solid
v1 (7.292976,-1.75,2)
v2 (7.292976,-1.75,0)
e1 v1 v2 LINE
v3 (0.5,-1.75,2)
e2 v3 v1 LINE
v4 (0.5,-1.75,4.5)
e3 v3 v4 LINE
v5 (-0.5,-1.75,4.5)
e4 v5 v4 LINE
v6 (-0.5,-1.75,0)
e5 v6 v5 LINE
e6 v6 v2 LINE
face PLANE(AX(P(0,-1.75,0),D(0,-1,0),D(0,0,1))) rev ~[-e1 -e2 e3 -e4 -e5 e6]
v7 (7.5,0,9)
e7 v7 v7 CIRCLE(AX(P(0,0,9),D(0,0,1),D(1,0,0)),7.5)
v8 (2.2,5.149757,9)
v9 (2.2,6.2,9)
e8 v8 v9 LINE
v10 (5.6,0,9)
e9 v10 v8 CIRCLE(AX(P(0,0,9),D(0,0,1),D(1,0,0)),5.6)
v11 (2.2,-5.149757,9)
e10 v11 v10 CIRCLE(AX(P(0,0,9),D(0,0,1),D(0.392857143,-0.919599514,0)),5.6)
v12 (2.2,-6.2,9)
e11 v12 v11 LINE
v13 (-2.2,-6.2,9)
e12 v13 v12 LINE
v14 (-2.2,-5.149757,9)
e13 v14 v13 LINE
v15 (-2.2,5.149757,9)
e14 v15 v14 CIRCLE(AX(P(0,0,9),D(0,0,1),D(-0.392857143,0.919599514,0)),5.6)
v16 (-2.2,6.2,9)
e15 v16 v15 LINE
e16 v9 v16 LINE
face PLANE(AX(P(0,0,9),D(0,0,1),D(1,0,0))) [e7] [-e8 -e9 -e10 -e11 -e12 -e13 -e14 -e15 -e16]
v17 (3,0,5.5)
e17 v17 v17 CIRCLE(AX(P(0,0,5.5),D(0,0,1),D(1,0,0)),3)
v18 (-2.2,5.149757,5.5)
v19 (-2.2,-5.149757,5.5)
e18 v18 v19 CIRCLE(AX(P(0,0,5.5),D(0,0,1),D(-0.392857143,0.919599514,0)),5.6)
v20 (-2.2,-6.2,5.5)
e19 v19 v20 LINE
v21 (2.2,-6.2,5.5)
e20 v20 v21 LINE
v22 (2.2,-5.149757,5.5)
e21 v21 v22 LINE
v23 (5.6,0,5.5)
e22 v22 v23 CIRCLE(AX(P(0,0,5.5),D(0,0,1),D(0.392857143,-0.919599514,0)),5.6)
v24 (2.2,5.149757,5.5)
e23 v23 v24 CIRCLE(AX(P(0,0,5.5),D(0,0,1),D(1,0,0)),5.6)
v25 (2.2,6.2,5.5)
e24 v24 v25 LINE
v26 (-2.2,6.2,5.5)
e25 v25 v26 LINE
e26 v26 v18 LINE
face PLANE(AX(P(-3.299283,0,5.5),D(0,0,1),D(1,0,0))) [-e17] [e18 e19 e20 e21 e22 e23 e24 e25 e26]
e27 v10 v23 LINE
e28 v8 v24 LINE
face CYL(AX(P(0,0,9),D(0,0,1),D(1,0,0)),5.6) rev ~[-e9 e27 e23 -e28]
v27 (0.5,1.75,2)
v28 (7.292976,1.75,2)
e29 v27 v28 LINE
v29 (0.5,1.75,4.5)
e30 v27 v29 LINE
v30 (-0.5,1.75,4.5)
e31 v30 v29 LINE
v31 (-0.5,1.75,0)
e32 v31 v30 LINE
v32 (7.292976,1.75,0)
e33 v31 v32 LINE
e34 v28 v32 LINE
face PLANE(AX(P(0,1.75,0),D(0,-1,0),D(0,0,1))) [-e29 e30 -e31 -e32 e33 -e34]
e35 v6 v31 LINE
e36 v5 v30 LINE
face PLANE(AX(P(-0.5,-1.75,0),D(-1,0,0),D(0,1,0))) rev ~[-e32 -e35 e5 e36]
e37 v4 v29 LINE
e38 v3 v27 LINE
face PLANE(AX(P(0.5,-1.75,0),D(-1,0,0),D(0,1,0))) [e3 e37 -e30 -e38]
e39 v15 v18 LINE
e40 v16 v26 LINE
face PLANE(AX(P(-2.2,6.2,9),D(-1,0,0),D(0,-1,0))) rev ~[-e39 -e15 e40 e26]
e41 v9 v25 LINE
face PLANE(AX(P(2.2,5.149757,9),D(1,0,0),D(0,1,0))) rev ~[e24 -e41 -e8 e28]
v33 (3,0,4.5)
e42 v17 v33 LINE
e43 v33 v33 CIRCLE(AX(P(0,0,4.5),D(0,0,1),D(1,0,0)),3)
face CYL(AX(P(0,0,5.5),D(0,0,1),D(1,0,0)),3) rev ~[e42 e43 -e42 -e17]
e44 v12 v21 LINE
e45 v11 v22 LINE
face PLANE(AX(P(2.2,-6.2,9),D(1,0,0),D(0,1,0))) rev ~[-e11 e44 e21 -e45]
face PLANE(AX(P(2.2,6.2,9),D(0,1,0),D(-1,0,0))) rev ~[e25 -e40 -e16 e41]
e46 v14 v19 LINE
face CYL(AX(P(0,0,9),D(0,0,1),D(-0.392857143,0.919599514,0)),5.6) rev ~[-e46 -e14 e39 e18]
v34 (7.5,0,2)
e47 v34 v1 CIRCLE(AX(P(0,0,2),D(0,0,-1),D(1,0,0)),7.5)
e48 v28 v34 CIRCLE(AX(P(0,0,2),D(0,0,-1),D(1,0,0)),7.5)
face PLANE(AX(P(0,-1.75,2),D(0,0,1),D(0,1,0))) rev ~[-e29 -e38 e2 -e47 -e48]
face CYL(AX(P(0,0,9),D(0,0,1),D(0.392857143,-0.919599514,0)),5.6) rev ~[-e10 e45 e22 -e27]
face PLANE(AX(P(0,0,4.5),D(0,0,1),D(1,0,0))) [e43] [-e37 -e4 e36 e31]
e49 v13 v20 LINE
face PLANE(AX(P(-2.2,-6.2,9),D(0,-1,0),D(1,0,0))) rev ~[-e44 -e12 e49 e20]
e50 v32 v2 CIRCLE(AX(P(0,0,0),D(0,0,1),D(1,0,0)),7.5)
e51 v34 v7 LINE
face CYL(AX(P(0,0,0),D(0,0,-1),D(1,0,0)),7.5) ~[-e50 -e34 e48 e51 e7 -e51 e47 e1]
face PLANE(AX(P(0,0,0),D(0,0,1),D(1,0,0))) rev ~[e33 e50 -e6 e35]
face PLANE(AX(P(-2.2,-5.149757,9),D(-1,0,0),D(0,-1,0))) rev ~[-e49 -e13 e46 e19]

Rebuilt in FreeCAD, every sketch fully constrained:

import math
import FreeCAD as App
import Part
import Sketcher

V = App.Vector

doc = App.newDocument("Part")
params = doc.addObject("Spreadsheet::Sheet", "Params")
for row, (alias, value) in enumerate([
    ("sketch1_diameter", "15 mm"),
    ("sketch1_width", "1 mm"),
    ("sketch1_height", "3.5 mm"),
    ("pad1_length", "9 mm"),
    ("sketch2_height", "2 mm"),
    ("sketch2_width", "3.5 mm"),
    ("pocket1_length", "10 mm"),
    ("sketch3_radius", "5.6 mm"),
    ("sketch3_width", "1 mm"),
    ("sketch3_width2", "4.4 mm"),
    ("sketch3_height", "3.5 mm"),
    ("pocket2_length", "3.5 mm"),
    ("sketch4_diameter", "6 mm"),
    ("sketch4_width", "1 mm"),
    ("sketch4_height", "3.5 mm"),
    ("pocket3_length", "1 mm"),
], start=1):
    params.set(f"A{row}", alias)
    params.set(f"B{row}", "=" + value)
    params.setAlias(f"B{row}", alias)

body = doc.addObject("PartDesign::Body", "Body")

sketch1 = body.newObject("Sketcher::SketchObject", "Sketch")
sketch1.AttachmentSupport = (doc.getObject("XY_Plane"), [""])
sketch1.MapMode = "FlatFace"
sketch1.addGeometry([
    Part.Circle(V(0, 0, 0), V(0, 0, 1), 7.5),
    Part.LineSegment(V(0.5, -1.8, 0), V(-0.5, -1.8, 0)),
    Part.LineSegment(V(-0.5, -1.8, 0), V(-0.5, 1.8, 0)),
    Part.LineSegment(V(-0.5, 1.8, 0), V(0.5, 1.8, 0)),
    Part.LineSegment(V(0.5, 1.8, 0), V(0.5, -1.8, 0)),
], False)
sketch1.addConstraint([
    Sketcher.Constraint("Coincident", 1, 2, 2, 1),
    Sketcher.Constraint("Coincident", 2, 2, 3, 1),
    Sketcher.Constraint("Coincident", 3, 2, 4, 1),
    Sketcher.Constraint("Coincident", 4, 2, 1, 1),
    Sketcher.Constraint("Horizontal", 1),
    Sketcher.Constraint("Vertical", 2),
    Sketcher.Constraint("Horizontal", 3),
    Sketcher.Constraint("Vertical", 4),
    Sketcher.Constraint("Coincident", 0, 3, -1, 1),
    Sketcher.Constraint("Symmetric", 1, 2, 3, 2, -1, 1),
    Sketcher.Constraint("Diameter", 0, 15.0),
    Sketcher.Constraint("DistanceX", 1, 2, 1, 1, 1.0),
    Sketcher.Constraint("DistanceY", 2, 1, 2, 2, 3.5),
])
sketch1.setExpression("Constraints[10]", "Params.sketch1_diameter")
sketch1.setExpression("Constraints[11]", "Params.sketch1_width")
sketch1.setExpression("Constraints[12]", "Params.sketch1_height")
pad1 = body.newObject("PartDesign::Pad", "Pad")
pad1.Profile = sketch1
pad1.setExpression("Length", "Params.pad1_length")

sketch2 = body.newObject("Sketcher::SketchObject", "Sketch001")
sketch2.AttachmentSupport = (doc.getObject("YZ_Plane"), [""])
sketch2.MapMode = "FlatFace"
sketch2.addGeometry([
    Part.LineSegment(V(-1.8, 2, 0), V(-1.8, 0, 0)),
    Part.LineSegment(V(-1.8, 0, 0), V(1.8, 0, 0)),
    Part.LineSegment(V(1.8, 0, 0), V(1.8, 2, 0)),
    Part.LineSegment(V(1.8, 2, 0), V(-1.8, 2, 0)),
], False)
sketch2.addConstraint([
    Sketcher.Constraint("Coincident", 0, 2, 1, 1),
    Sketcher.Constraint("Coincident", 1, 2, 2, 1),
    Sketcher.Constraint("Coincident", 2, 2, 3, 1),
    Sketcher.Constraint("Coincident", 3, 2, 0, 1),
    Sketcher.Constraint("Vertical", 0),
    Sketcher.Constraint("Horizontal", 1),
    Sketcher.Constraint("Vertical", 2),
    Sketcher.Constraint("Horizontal", 3),
    Sketcher.Constraint("Symmetric", 0, 2, 1, 2, -1, 1),
    Sketcher.Constraint("DistanceY", 0, 2, 0, 1, 2.0),
    Sketcher.Constraint("DistanceX", 1, 1, 1, 2, 3.5),
])
sketch2.setExpression("Constraints[9]", "Params.sketch2_height")
sketch2.setExpression("Constraints[10]", "Params.sketch2_width")
pocket1 = body.newObject("PartDesign::Pocket", "Pocket")
pocket1.Profile = sketch2
pocket1.setExpression("Length", "Params.pocket1_length")
pocket1.Reversed = True

sketch3 = body.newObject("Sketcher::SketchObject", "Sketch002")
sketch3.AttachmentSupport = (doc.getObject("XY_Plane"), [""])
sketch3.MapMode = "FlatFace"
sketch3.AttachmentOffset = App.Placement(V(0, 0, 9), App.Rotation())
sketch3.addGeometry([
    Part.ArcOfCircle(Part.Circle(V(0, 0, 0), V(0, 0, 1), 5.6), math.radians(113), math.radians(247)),
    Part.LineSegment(V(-2.2, -5.1, 0), V(-2.2, -6.2, 0)),
    Part.LineSegment(V(-2.2, -6.2, 0), V(2.2, -6.2, 0)),
    Part.LineSegment(V(2.2, -6.2, 0), V(2.2, -5.1, 0)),
    Part.ArcOfCircle(Part.Circle(V(0, 0, 0), V(0, 0, 1), 5.6), math.radians(-67), math.radians(0)),
    Part.ArcOfCircle(Part.Circle(V(0, 0, 0), V(0, 0, 1), 5.6), math.radians(0), math.radians(67)),
    Part.LineSegment(V(2.2, 5.1, 0), V(2.2, 6.2, 0)),
    Part.LineSegment(V(2.2, 6.2, 0), V(-2.2, 6.2, 0)),
    Part.LineSegment(V(-2.2, 6.2, 0), V(-2.2, 5.1, 0)),
    Part.LineSegment(V(0.5, -1.8, 0), V(-0.5, -1.8, 0)),
    Part.LineSegment(V(-0.5, -1.8, 0), V(-0.5, 1.8, 0)),
    Part.LineSegment(V(-0.5, 1.8, 0), V(0.5, 1.8, 0)),
    Part.LineSegment(V(0.5, 1.8, 0), V(0.5, -1.8, 0)),
], False)
sketch3.addConstraint([
    Sketcher.Constraint("Coincident", 0, 2, 1, 1),
    Sketcher.Constraint("Coincident", 1, 2, 2, 1),
    Sketcher.Constraint("Coincident", 2, 2, 3, 1),
    Sketcher.Constraint("Coincident", 3, 2, 4, 1),
    Sketcher.Constraint("Tangent", 4, 2, 5, 1),
    Sketcher.Constraint("Coincident", 5, 2, 6, 1),
    Sketcher.Constraint("Coincident", 6, 2, 7, 1),
    Sketcher.Constraint("Coincident", 7, 2, 8, 1),
    Sketcher.Constraint("Coincident", 8, 2, 0, 1),
    Sketcher.Constraint("Coincident", 9, 2, 10, 1),
    Sketcher.Constraint("Coincident", 10, 2, 11, 1),
    Sketcher.Constraint("Coincident", 11, 2, 12, 1),
    Sketcher.Constraint("Coincident", 12, 2, 9, 1),
    Sketcher.Constraint("Vertical", 1),
    Sketcher.Constraint("Horizontal", 2),
    Sketcher.Constraint("Vertical", 3),
    Sketcher.Constraint("Vertical", 6),
    Sketcher.Constraint("Horizontal", 7),
    Sketcher.Constraint("Vertical", 8),
    Sketcher.Constraint("Horizontal", 9),
    Sketcher.Constraint("Vertical", 10),
    Sketcher.Constraint("Horizontal", 11),
    Sketcher.Constraint("Vertical", 12),
    Sketcher.Constraint("Coincident", 0, 3, -1, 1),
    Sketcher.Constraint("Coincident", 4, 3, -1, 1),
    Sketcher.Constraint("Equal", 0, 4),
    Sketcher.Constraint("Equal", 4, 5),
    Sketcher.Constraint("Symmetric", 1, 2, 6, 2, -1, 1),
    Sketcher.Constraint("Symmetric", 9, 2, 11, 2, -1, 1),
    Sketcher.Constraint("PointOnObject", 4, 2, -1),
    Sketcher.Constraint("Horizontal", 0, 2, 3, 2),
    Sketcher.Constraint("Horizontal", 5, 2, 8, 2),
    Sketcher.Constraint("Radius", 0, 5.6),
    Sketcher.Constraint("DistanceX", 9, 2, 9, 1, 1.0),
    Sketcher.Constraint("DistanceX", 2, 1, 2, 2, 4.4),
    Sketcher.Constraint("DistanceY", 10, 1, 10, 2, 3.5),
    Sketcher.Constraint("DistanceY", 1, 2, -1, 1, 6.2),
])
sketch3.setExpression("Constraints[32]", "Params.sketch3_radius")
sketch3.setExpression("Constraints[33]", "Params.sketch3_width")
sketch3.setExpression("Constraints[34]", "Params.sketch3_width2")
sketch3.setExpression("Constraints[35]", "Params.sketch3_height")
pocket2 = body.newObject("PartDesign::Pocket", "Pocket001")
pocket2.Profile = sketch3
pocket2.setExpression("Length", "Params.pocket2_length")

sketch4 = body.newObject("Sketcher::SketchObject", "Sketch003")
sketch4.AttachmentSupport = (doc.getObject("XY_Plane"), [""])
sketch4.MapMode = "FlatFace"
sketch4.AttachmentOffset = App.Placement(V(0, 0, 5.5), App.Rotation())
sketch4.addGeometry([
    Part.Circle(V(0, 0, 0), V(0, 0, 1), 3),
    Part.LineSegment(V(0.5, -1.8, 0), V(-0.5, -1.8, 0)),
    Part.LineSegment(V(-0.5, -1.8, 0), V(-0.5, 1.8, 0)),
    Part.LineSegment(V(-0.5, 1.8, 0), V(0.5, 1.8, 0)),
    Part.LineSegment(V(0.5, 1.8, 0), V(0.5, -1.8, 0)),
], False)
sketch4.addConstraint([
    Sketcher.Constraint("Coincident", 1, 2, 2, 1),
    Sketcher.Constraint("Coincident", 2, 2, 3, 1),
    Sketcher.Constraint("Coincident", 3, 2, 4, 1),
    Sketcher.Constraint("Coincident", 4, 2, 1, 1),
    Sketcher.Constraint("Horizontal", 1),
    Sketcher.Constraint("Vertical", 2),
    Sketcher.Constraint("Horizontal", 3),
    Sketcher.Constraint("Vertical", 4),
    Sketcher.Constraint("Coincident", 0, 3, -1, 1),
    Sketcher.Constraint("Symmetric", 1, 2, 3, 2, -1, 1),
    Sketcher.Constraint("Diameter", 0, 6.0),
    Sketcher.Constraint("DistanceX", 1, 2, 1, 1, 1.0),
    Sketcher.Constraint("DistanceY", 2, 1, 2, 2, 3.5),
])
sketch4.setExpression("Constraints[10]", "Params.sketch4_diameter")
sketch4.setExpression("Constraints[11]", "Params.sketch4_width")
sketch4.setExpression("Constraints[12]", "Params.sketch4_height")
pocket3 = body.newObject("PartDesign::Pocket", "Pocket002")
pocket3.Profile = sketch4
pocket3.setExpression("Length", "Params.pocket3_length")

doc.recompute()
